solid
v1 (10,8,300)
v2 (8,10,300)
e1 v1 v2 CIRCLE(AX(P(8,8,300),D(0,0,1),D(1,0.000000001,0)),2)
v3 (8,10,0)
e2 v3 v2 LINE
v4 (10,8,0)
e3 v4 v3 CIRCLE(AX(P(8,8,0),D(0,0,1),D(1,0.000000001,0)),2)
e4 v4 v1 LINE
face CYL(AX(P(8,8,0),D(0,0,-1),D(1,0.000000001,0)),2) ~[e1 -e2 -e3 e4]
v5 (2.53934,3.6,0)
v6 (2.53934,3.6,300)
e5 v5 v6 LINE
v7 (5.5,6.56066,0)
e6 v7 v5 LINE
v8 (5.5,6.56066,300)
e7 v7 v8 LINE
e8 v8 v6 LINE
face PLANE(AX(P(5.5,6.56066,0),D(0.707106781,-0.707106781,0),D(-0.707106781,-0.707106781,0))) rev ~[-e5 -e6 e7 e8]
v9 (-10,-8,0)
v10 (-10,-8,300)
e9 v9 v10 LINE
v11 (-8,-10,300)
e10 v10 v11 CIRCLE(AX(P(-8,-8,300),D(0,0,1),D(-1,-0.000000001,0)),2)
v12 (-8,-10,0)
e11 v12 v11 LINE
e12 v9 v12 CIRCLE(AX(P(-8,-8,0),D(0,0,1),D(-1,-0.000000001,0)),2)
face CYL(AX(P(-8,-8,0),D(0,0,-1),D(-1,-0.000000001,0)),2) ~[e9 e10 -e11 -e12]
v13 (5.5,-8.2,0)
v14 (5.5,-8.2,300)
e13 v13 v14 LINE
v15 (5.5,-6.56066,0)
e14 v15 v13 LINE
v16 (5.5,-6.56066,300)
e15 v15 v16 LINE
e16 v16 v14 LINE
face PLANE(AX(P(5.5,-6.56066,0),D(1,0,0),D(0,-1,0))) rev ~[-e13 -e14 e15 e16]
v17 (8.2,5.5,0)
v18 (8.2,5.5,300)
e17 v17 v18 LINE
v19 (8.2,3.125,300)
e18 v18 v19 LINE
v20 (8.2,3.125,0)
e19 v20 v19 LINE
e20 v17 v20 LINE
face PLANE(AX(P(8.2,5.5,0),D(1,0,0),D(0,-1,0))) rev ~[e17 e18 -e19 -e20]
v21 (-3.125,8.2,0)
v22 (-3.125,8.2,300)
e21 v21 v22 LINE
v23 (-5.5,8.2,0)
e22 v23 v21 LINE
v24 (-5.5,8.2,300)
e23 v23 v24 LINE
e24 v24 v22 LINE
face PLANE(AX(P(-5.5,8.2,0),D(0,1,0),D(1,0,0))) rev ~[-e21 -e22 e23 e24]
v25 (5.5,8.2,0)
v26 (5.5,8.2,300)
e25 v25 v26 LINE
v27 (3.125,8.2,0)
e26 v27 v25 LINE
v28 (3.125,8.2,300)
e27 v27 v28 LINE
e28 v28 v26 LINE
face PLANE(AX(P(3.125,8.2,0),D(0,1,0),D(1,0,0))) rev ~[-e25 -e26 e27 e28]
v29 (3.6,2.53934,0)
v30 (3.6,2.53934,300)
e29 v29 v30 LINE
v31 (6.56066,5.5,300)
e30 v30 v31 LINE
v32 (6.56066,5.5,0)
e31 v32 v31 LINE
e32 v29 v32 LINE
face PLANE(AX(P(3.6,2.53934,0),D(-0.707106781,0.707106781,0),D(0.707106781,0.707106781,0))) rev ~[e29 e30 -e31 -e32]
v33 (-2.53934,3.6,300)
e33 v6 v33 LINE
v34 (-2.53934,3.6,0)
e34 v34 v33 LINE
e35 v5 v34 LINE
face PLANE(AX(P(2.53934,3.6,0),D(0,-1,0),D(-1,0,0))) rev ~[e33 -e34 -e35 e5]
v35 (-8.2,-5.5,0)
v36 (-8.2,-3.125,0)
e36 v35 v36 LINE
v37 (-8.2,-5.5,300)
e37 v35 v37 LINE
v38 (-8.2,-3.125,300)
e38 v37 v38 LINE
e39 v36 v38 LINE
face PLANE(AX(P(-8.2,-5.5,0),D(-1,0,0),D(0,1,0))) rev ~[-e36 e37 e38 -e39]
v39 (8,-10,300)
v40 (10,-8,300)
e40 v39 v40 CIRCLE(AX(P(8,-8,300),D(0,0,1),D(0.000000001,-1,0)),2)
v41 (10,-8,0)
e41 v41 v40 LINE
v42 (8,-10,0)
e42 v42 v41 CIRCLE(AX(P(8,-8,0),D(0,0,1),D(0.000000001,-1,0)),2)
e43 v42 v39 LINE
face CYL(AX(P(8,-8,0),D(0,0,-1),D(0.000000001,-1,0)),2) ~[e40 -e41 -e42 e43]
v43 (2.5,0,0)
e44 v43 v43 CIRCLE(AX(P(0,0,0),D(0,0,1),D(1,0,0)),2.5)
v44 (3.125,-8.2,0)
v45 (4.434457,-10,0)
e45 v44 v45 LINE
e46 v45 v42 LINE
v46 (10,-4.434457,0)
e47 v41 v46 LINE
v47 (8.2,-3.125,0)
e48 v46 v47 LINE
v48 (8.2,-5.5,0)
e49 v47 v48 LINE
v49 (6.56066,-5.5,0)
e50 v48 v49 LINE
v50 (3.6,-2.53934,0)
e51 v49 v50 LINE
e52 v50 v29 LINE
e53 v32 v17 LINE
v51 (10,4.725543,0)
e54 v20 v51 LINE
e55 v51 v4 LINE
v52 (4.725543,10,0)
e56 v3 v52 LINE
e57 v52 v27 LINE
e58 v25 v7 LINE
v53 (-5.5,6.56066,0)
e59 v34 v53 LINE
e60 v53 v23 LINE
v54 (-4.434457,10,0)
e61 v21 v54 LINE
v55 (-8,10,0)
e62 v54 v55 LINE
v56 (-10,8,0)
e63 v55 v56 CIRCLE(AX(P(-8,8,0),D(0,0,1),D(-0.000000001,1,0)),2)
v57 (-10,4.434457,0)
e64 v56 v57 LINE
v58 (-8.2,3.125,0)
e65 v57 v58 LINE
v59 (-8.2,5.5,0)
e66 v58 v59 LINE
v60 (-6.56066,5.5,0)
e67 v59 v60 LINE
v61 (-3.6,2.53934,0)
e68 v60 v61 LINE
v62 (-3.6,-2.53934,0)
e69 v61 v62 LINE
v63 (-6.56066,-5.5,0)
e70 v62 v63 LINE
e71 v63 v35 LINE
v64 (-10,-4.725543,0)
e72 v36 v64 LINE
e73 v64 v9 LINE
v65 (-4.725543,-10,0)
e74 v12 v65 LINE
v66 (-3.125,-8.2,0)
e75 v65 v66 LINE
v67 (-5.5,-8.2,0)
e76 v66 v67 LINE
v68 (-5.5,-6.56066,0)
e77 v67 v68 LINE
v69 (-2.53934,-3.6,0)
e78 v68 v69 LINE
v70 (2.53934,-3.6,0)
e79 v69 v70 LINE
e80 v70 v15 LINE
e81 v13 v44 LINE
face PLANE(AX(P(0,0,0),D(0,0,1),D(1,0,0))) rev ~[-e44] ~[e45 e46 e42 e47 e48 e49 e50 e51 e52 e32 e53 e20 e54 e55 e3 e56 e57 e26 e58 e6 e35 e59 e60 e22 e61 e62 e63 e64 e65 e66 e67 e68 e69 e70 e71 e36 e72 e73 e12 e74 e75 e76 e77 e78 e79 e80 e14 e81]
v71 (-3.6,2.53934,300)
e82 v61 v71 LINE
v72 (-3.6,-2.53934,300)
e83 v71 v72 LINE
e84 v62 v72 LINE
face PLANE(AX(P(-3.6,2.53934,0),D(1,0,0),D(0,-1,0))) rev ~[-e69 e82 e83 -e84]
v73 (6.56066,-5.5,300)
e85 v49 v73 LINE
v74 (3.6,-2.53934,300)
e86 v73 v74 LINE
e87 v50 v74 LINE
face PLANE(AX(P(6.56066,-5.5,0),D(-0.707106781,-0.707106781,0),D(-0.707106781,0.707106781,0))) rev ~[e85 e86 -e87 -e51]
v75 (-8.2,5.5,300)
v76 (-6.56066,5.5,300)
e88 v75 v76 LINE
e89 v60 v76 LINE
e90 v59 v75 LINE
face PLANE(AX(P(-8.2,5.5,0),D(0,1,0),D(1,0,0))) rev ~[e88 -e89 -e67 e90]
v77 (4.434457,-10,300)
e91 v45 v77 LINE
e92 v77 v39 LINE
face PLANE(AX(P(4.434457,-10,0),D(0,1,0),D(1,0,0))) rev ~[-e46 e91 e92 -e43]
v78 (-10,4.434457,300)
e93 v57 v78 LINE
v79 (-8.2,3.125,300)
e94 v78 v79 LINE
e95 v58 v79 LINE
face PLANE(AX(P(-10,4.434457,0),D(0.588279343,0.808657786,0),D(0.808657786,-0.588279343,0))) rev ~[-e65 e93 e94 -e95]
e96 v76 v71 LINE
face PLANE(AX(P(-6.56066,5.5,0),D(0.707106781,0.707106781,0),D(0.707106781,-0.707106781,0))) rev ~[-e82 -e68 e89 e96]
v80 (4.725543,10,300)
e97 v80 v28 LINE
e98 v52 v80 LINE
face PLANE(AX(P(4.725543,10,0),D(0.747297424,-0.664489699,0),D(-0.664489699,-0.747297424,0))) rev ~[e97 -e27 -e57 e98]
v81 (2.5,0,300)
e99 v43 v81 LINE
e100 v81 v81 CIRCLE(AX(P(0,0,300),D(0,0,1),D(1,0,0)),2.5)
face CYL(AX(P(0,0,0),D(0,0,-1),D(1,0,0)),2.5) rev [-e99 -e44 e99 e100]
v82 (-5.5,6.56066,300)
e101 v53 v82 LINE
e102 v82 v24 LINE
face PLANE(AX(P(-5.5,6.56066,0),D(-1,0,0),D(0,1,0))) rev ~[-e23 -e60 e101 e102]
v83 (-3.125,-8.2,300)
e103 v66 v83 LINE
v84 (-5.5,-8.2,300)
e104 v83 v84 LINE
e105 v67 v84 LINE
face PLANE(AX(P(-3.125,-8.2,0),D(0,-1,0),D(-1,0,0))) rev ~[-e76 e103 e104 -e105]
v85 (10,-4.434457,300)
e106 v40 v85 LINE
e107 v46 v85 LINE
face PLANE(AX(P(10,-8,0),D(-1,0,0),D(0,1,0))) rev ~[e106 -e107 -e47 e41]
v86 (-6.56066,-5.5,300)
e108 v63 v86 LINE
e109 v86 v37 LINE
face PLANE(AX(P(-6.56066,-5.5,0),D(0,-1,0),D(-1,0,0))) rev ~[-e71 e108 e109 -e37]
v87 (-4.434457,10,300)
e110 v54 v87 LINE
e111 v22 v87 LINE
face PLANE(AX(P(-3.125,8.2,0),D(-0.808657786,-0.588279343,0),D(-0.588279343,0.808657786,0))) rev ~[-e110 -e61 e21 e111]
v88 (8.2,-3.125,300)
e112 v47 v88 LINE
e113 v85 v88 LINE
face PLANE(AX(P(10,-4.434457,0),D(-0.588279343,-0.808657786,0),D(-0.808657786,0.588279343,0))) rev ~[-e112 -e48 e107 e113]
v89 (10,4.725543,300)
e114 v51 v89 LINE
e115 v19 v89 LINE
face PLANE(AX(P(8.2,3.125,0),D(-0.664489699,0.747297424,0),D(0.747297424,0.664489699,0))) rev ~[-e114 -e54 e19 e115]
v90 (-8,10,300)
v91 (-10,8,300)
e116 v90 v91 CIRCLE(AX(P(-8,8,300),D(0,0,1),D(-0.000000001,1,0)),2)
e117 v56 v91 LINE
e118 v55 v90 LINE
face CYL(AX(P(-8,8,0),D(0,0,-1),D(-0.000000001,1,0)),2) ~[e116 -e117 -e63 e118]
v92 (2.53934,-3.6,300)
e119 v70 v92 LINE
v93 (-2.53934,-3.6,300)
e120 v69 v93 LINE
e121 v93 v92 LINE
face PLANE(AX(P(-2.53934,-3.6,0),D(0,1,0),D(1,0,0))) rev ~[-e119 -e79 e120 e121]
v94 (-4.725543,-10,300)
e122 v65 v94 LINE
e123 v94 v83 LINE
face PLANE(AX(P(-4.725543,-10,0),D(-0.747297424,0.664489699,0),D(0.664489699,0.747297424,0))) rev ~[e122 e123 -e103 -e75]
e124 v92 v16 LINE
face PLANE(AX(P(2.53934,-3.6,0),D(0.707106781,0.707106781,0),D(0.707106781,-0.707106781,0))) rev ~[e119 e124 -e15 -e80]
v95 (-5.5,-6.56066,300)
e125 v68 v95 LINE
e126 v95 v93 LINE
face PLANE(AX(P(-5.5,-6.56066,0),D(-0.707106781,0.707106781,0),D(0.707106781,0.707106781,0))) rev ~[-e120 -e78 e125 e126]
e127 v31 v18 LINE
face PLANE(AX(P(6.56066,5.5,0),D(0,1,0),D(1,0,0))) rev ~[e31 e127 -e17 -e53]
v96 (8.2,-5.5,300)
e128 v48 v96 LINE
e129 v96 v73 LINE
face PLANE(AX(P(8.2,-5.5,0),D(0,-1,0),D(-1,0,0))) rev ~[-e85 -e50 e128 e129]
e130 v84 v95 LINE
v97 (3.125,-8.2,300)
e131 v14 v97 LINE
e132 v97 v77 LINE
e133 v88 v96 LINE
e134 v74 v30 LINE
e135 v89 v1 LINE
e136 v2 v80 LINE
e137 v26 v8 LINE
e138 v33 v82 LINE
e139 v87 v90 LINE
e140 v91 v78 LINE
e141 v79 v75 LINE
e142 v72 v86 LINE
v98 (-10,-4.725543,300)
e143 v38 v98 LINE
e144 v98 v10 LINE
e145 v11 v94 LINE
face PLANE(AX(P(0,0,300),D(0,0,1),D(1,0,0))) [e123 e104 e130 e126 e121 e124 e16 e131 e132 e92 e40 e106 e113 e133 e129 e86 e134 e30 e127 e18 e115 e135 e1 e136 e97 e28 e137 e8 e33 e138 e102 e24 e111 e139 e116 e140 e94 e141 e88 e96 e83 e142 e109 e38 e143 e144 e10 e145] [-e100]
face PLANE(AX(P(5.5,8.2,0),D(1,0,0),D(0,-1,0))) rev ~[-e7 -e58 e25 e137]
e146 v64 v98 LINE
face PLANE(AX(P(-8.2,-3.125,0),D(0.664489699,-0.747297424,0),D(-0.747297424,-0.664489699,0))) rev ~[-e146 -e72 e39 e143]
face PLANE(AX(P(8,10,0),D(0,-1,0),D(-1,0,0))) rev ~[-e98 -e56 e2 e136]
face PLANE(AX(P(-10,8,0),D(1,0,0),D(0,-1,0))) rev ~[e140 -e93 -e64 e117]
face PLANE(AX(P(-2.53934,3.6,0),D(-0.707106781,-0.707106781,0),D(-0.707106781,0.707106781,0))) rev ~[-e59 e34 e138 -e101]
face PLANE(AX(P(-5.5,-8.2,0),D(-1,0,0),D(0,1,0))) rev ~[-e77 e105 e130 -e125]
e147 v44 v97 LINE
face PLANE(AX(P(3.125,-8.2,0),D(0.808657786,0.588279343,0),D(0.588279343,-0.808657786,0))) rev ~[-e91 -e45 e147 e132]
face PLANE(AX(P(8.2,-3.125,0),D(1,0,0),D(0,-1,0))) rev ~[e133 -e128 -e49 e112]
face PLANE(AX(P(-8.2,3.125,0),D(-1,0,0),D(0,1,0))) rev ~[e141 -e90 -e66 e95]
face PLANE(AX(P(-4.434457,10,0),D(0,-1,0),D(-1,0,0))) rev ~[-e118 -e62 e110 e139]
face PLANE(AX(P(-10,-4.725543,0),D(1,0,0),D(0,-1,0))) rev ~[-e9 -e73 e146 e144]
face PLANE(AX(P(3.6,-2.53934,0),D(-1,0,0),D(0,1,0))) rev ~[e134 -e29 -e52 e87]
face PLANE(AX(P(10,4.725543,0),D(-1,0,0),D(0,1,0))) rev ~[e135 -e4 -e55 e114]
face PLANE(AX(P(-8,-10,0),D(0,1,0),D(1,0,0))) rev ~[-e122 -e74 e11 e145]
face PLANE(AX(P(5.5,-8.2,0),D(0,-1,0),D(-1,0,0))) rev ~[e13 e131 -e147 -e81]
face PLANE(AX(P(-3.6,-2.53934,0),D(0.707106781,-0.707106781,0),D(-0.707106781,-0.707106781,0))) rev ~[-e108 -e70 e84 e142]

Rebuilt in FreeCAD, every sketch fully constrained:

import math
import FreeCAD as App
import Part
import Sketcher
from FreeCAD import Vector
Q = App.Units.Quantity

doc = App.newDocument("Part")
params = doc.addObject("Spreadsheet::Sheet", "Params")
for row, (alias, value) in enumerate([
    ("sketch1_diameter", "5 mm"),
    ("sketch1_radius", "2 mm"),
    ("pad1_length", "300 mm"),
], start=1):
    params.set(f"A{row}", alias)
    params.set(f"B{row}", "=" + value)
    params.setAlias(f"B{row}", alias)

body = doc.addObject("PartDesign::Body", "Body")

sketch1 = body.newObject("Sketcher::SketchObject", "Sketch")
sketch1.AttachmentSupport = (doc.getObject("XY_Plane"), [""])
sketch1.MapMode = "FlatFace"
sketch1.addGeometry([
    Part.LineSegment(Vector(-4.7, -10, 0), Vector(-3.1, -8.2, 0)),
    Part.LineSegment(Vector(-3.1, -8.2, 0), Vector(-5.5, -8.2, 0)),
    Part.LineSegment(Vector(-5.5, -8.2, 0), Vector(-5.5, -6.6, 0)),
    Part.LineSegment(Vector(-5.5, -6.6, 0), Vector(-2.5, -3.6, 0)),
    Part.LineSegment(Vector(-2.5, -3.6, 0), Vector(2.5, -3.6, 0)),
    Part.LineSegment(Vector(2.5, -3.6, 0), Vector(5.5, -6.6, 0)),
    Part.LineSegment(Vector(5.5, -6.6, 0), Vector(5.5, -8.2, 0)),
    Part.LineSegment(Vector(5.5, -8.2, 0), Vector(3.1, -8.2, 0)),
    Part.LineSegment(Vector(3.1, -8.2, 0), Vector(4.4, -10, 0)),
    Part.LineSegment(Vector(4.4, -10, 0), Vector(8, -10, 0)),
    Part.ArcOfCircle(Part.Circle(Vector(8, -8, 0), Vector(0, 0, 1), 2), math.radians(-90), math.radians(0)),
    Part.LineSegment(Vector(10, -8, 0), Vector(10, -4.4, 0)),
    Part.LineSegment(Vector(10, -4.4, 0), Vector(8.2, -3.1, 0)),
    Part.LineSegment(Vector(8.2, -3.1, 0), Vector(8.2, -5.5, 0)),
    Part.LineSegment(Vector(8.2, -5.5, 0), Vector(6.6, -5.5, 0)),
    Part.LineSegment(Vector(6.6, -5.5, 0), Vector(3.6, -2.5, 0)),
    Part.LineSegment(Vector(3.6, -2.5, 0), Vector(3.6, 2.5, 0)),
    Part.LineSegment(Vector(3.6, 2.5, 0), Vector(6.6, 5.5, 0)),
    Part.LineSegment(Vector(6.6, 5.5, 0), Vector(8.2, 5.5, 0)),
    Part.LineSegment(Vector(8.2, 5.5, 0), Vector(8.2, 3.1, 0)),
    Part.LineSegment(Vector(8.2, 3.1, 0), Vector(10, 4.7, 0)),
    Part.LineSegment(Vector(10, 4.7, 0), Vector(10, 8, 0)),
    Part.ArcOfCircle(Part.Circle(Vector(8, 8, 0), Vector(0, 0, 1), 2), math.radians(0), math.radians(90)),
    Part.LineSegment(Vector(8, 10, 0), Vector(4.7, 10, 0)),
    Part.LineSegment(Vector(4.7, 10, 0), Vector(3.1, 8.2, 0)),
    Part.LineSegment(Vector(3.1, 8.2, 0), Vector(5.5, 8.2, 0)),
    Part.LineSegment(Vector(5.5, 8.2, 0), Vector(5.5, 6.6, 0)),
    Part.LineSegment(Vector(5.5, 6.6, 0), Vector(2.5, 3.6, 0)),
    Part.LineSegment(Vector(2.5, 3.6, 0), Vector(-2.5, 3.6, 0)),
    Part.LineSegment(Vector(-2.5, 3.6, 0), Vector(-5.5, 6.6, 0)),
    Part.LineSegment(Vector(-5.5, 6.6, 0), Vector(-5.5, 8.2, 0)),
    Part.LineSegment(Vector(-5.5, 8.2, 0), Vector(-3.1, 8.2, 0)),
    Part.LineSegment(Vector(-3.1, 8.2, 0), Vector(-4.4, 10, 0)),
    Part.LineSegment(Vector(-4.4, 10, 0), Vector(-8, 10, 0)),
    Part.ArcOfCircle(Part.Circle(Vector(-8, 8, 0), Vector(0, 0, 1), 2), math.radians(90), math.radians(180)),
    Part.LineSegment(Vector(-10, 8, 0), Vector(-10, 4.4, 0)),
    Part.LineSegment(Vector(-10, 4.4, 0), Vector(-8.2, 3.1, 0)),
    Part.LineSegment(Vector(-8.2, 3.1, 0), Vector(-8.2, 5.5, 0)),
    Part.LineSegment(Vector(-8.2, 5.5, 0), Vector(-6.6, 5.5, 0)),
    Part.LineSegment(Vector(-6.6, 5.5, 0), Vector(-3.6, 2.5, 0)),
    Part.LineSegment(Vector(-3.6, 2.5, 0), Vector(-3.6, -2.5, 0)),
    Part.LineSegment(Vector(-3.6, -2.5, 0), Vector(-6.6, -5.5, 0)),
    Part.LineSegment(Vector(-6.6, -5.5, 0), Vector(-8.2, -5.5, 0)),
    Part.LineSegment(Vector(-8.2, -5.5, 0), Vector(-8.2, -3.1, 0)),
    Part.LineSegment(Vector(-8.2, -3.1, 0), Vector(-10, -4.7, 0)),
    Part.LineSegment(Vector(-10, -4.7, 0), Vector(-10, -8, 0)),
    Part.ArcOfCircle(Part.Circle(Vector(-8, -8, 0), Vector(0, 0, 1), 2), math.radians(-180), math.radians(-90)),
    Part.LineSegment(Vector(-8, -10, 0), Vector(-4.7, -10, 0)),
    Part.Circle(Vector(0, 0, 0), Vector(0, 0, 1), 2.5),
], False)
sketch1.addConstraint([
    Sketcher.Constraint("Coincident", 0, 2, 1, 1),
    Sketcher.Constraint("Coincident", 1, 2, 2, 1),
    Sketcher.Constraint("Coincident", 2, 2, 3, 1),
    Sketcher.Constraint("Coincident", 3, 2, 4, 1),
    Sketcher.Constraint("Coincident", 4, 2, 5, 1),
    Sketcher.Constraint("Coincident", 5, 2, 6, 1),
    Sketcher.Constraint("Coincident", 6, 2, 7, 1),
    Sketcher.Constraint("Coincident", 7, 2, 8, 1),
    Sketcher.Constraint("Coincident", 8, 2, 9, 1),
    Sketcher.Constraint("Tangent", 9, 2, 10, 1),
    Sketcher.Constraint("Tangent", 10, 2, 11, 1),
    Sketcher.Constraint("Coincident", 11, 2, 12, 1),
    Sketcher.Constraint("Coincident", 12, 2, 13, 1),
    Sketcher.Constraint("Coincident", 13, 2, 14, 1),
    Sketcher.Constraint("Coincident", 14, 2, 15, 1),
    Sketcher.Constraint("Coincident", 15, 2, 16, 1),
    Sketcher.Constraint("Coincident", 16, 2, 17, 1),
    Sketcher.Constraint("Coincident", 17, 2, 18, 1),
    Sketcher.Constraint("Coincident", 18, 2, 19, 1),
    Sketcher.Constraint("Coincident", 19, 2, 20, 1),
    Sketcher.Constraint("Coincident", 20, 2, 21, 1),
    Sketcher.Constraint("Tangent", 21, 2, 22, 1),
    Sketcher.Constraint("Tangent", 22, 2, 23, 1),
    Sketcher.Constraint("Coincident", 23, 2, 24, 1),
    Sketcher.Constraint("Coincident", 24, 2, 25, 1),
    Sketcher.Constraint("Coincident", 25, 2, 26, 1),
    Sketcher.Constraint("Coincident", 26, 2, 27, 1),
    Sketcher.Constraint("Coincident", 27, 2, 28, 1),
    Sketcher.Constraint("Coincident", 28, 2, 29, 1),
    Sketcher.Constraint("Coincident", 29, 2, 30, 1),
    Sketcher.Constraint("Coincident", 30, 2, 31, 1),
    Sketcher.Constraint("Coincident", 31, 2, 32, 1),
    Sketcher.Constraint("Coincident", 32, 2, 33, 1),
    Sketcher.Constraint("Tangent", 33, 2, 34, 1),
    Sketcher.Constraint("Tangent", 34, 2, 35, 1),
    Sketcher.Constraint("Coincident", 35, 2, 36, 1),
    Sketcher.Constraint("Coincident", 36, 2, 37, 1),
    Sketcher.Constraint("Coincident", 37, 2, 38, 1),
    Sketcher.Constraint("Coincident", 38, 2, 39, 1),
    Sketcher.Constraint("Coincident", 39, 2, 40, 1),
    Sketcher.Constraint("Coincident", 40, 2, 41, 1),
    Sketcher.Constraint("Coincident", 41, 2, 42, 1),
    Sketcher.Constraint("Coincident", 42, 2, 43, 1),
    Sketcher.Constraint("Coincident", 43, 2, 44, 1),
    Sketcher.Constraint("Coincident", 44, 2, 45, 1),
    Sketcher.Constraint("Tangent", 45, 2, 46, 1),
    Sketcher.Constraint("Tangent", 46, 2, 47, 1),
    Sketcher.Constraint("Coincident", 47, 2, 0, 1),
    Sketcher.Constraint("Horizontal", 1),
    Sketcher.Constraint("Vertical", 2),
    Sketcher.Constraint("Horizontal", 4),
    Sketcher.Constraint("Vertical", 6),
    Sketcher.Constraint("Horizontal", 7),
    Sketcher.Constraint("Horizontal", 9),
    Sketcher.Constraint("Vertical", 11),
    Sketcher.Constraint("Vertical", 13),
    Sketcher.Constraint("Horizontal", 14),
    Sketcher.Constraint("Vertical", 16),
    Sketcher.Constraint("Horizontal", 18),
    Sketcher.Constraint("Vertical", 19),
    Sketcher.Constraint("Vertical", 21),
    Sketcher.Constraint("Horizontal", 23),
    Sketcher.Constraint("Horizontal", 25),
    Sketcher.Constraint("Vertical", 26),
    Sketcher.Constraint("Horizontal", 28),
    Sketcher.Constraint("Vertical", 30),
    Sketcher.Constraint("Horizontal", 31),
    Sketcher.Constraint("Horizontal", 33),
    Sketcher.Constraint("Vertical", 35),
    Sketcher.Constraint("Vertical", 37),
    Sketcher.Constraint("Horizontal", 38),
    Sketcher.Constraint("Vertical", 40),
    Sketcher.Constraint("Horizontal", 42),
    Sketcher.Constraint("Vertical", 43),
    Sketcher.Constraint("Vertical", 45),
    Sketcher.Constraint("Horizontal", 47),
    Sketcher.Constraint("Coincident", 48, 3, -1, 1),
    Sketcher.Constraint("Equal", 10, 22),
    Sketcher.Constraint("Equal", 22, 34),
    Sketcher.Constraint("Equal", 34, 46),
    Sketcher.Constraint("Symmetric", 10, 3, 34, 3, -1, 1),
    Sketcher.Constraint("Symmetric", 22, 3, 46, 3, -1, 1),
    Sketcher.Constraint("Symmetric", 0, 2, 24, 2, -1, 1),
    Sketcher.Constraint("Symmetric", 2, 2, 26, 2, -1, 1),
    Sketcher.Constraint("Symmetric", 3, 2, 27, 2, -1, 1),
    Sketcher.Constraint("Symmetric", 5, 2, 29, 2, -1, 1),
    Sketcher.Constraint("Symmetric", 7, 2, 31, 2, -1, 1),
    Sketcher.Constraint("Symmetric", 12, 2, 36, 2, -1, 1),
    Sketcher.Constraint("Symmetric", 14, 2, 38, 2, -1, 1),
    Sketcher.Constraint("Symmetric", 15, 2, 39, 2, -1, 1),
    Sketcher.Constraint("Symmetric", 17, 2, 41, 2, -1, 1),
    Sketcher.Constraint("Symmetric", 19, 2, 43, 2, -1, 1),
    Sketcher.Constraint("Symmetric", 22, 3, 34, 3, -2),
    Sketcher.Constraint("Symmetric", 2, 2, 5, 2, -2),
    Sketcher.Constraint("Symmetric", 0, 2, 7, 2, -2),
    Sketcher.Constraint("Symmetric", 19, 2, 36, 2, -2),
    Sketcher.Constraint("Symmetric", 17, 2, 38, 2, -2),
    Sketcher.Constraint("Perpendicular", 3, 5),
    Sketcher.Constraint("Parallel", 5, 15),
    Sketcher.Constraint("Perpendicular", 15, 17),
    Sketcher.Constraint("Parallel", 0, 24),
    Sketcher.Constraint("Perpendicular", 27, 29),
    Sketcher.Constraint("Parallel", 8, 32),
    Sketcher.Constraint("Parallel", 12, 36),
    Sketcher.Constraint("Perpendicular", 39, 41),
    Sketcher.Constraint("Parallel", 20, 44),
    Sketcher.Constraint("Horizontal", 16, 2, 39, 2),
    Sketcher.Constraint("Equal", 42, 2),
    Sketcher.Constraint("Equal", 33, 11),
    Sketcher.Constraint("Equal", 31, 13),
    Sketcher.Constraint("Equal", 28, 16),
    Sketcher.Constraint("Equal", 47, 21),
    Sketcher.Constraint("Equal", 8, 12),
    Sketcher.Constraint("Equal", 5, 15),
    Sketcher.Constraint("Equal", 0, 20),
    Sketcher.Constraint("Diameter", 48, Q("5 mm")),
    Sketcher.Constraint("Radius", 10, Q("2 mm")),
    Sketcher.Constraint("DistanceX", -1, 1, 10, 3, Q("8 mm")),
    Sketcher.Constraint("DistanceY", 0, 2, -1, 1, Q("8.2 mm")),
    Sketcher.Constraint("DistanceX", 1, 2, -1, 1, Q("5.5 mm")),
    Sketcher.Constraint("DistanceY", 3, 2, -1, 1, Q("3.6 mm")),
    Sketcher.Constraint("DistanceX", 1, 2, 1, 1, Q("2.375 mm")),
    Sketcher.Constraint("DistanceX", 4, 1, 4, 2, Q("5.07868 mm")),
    Sketcher.Constraint("Distance", 0, Q("2.40868 mm")),
    Sketcher.Constraint("Distance", 8, Q("2.225911 mm")),
])
sketch1.setExpression("Constraints[115]", "Params.sketch1_diameter")
sketch1.setExpression("Constraints[116]", "Params.sketch1_radius")
pad1 = body.newObject("PartDesign::Pad", "Pad")
pad1.Profile = sketch1
pad1.setExpression("Length", "Params.pad1_length")

doc.recompute()
